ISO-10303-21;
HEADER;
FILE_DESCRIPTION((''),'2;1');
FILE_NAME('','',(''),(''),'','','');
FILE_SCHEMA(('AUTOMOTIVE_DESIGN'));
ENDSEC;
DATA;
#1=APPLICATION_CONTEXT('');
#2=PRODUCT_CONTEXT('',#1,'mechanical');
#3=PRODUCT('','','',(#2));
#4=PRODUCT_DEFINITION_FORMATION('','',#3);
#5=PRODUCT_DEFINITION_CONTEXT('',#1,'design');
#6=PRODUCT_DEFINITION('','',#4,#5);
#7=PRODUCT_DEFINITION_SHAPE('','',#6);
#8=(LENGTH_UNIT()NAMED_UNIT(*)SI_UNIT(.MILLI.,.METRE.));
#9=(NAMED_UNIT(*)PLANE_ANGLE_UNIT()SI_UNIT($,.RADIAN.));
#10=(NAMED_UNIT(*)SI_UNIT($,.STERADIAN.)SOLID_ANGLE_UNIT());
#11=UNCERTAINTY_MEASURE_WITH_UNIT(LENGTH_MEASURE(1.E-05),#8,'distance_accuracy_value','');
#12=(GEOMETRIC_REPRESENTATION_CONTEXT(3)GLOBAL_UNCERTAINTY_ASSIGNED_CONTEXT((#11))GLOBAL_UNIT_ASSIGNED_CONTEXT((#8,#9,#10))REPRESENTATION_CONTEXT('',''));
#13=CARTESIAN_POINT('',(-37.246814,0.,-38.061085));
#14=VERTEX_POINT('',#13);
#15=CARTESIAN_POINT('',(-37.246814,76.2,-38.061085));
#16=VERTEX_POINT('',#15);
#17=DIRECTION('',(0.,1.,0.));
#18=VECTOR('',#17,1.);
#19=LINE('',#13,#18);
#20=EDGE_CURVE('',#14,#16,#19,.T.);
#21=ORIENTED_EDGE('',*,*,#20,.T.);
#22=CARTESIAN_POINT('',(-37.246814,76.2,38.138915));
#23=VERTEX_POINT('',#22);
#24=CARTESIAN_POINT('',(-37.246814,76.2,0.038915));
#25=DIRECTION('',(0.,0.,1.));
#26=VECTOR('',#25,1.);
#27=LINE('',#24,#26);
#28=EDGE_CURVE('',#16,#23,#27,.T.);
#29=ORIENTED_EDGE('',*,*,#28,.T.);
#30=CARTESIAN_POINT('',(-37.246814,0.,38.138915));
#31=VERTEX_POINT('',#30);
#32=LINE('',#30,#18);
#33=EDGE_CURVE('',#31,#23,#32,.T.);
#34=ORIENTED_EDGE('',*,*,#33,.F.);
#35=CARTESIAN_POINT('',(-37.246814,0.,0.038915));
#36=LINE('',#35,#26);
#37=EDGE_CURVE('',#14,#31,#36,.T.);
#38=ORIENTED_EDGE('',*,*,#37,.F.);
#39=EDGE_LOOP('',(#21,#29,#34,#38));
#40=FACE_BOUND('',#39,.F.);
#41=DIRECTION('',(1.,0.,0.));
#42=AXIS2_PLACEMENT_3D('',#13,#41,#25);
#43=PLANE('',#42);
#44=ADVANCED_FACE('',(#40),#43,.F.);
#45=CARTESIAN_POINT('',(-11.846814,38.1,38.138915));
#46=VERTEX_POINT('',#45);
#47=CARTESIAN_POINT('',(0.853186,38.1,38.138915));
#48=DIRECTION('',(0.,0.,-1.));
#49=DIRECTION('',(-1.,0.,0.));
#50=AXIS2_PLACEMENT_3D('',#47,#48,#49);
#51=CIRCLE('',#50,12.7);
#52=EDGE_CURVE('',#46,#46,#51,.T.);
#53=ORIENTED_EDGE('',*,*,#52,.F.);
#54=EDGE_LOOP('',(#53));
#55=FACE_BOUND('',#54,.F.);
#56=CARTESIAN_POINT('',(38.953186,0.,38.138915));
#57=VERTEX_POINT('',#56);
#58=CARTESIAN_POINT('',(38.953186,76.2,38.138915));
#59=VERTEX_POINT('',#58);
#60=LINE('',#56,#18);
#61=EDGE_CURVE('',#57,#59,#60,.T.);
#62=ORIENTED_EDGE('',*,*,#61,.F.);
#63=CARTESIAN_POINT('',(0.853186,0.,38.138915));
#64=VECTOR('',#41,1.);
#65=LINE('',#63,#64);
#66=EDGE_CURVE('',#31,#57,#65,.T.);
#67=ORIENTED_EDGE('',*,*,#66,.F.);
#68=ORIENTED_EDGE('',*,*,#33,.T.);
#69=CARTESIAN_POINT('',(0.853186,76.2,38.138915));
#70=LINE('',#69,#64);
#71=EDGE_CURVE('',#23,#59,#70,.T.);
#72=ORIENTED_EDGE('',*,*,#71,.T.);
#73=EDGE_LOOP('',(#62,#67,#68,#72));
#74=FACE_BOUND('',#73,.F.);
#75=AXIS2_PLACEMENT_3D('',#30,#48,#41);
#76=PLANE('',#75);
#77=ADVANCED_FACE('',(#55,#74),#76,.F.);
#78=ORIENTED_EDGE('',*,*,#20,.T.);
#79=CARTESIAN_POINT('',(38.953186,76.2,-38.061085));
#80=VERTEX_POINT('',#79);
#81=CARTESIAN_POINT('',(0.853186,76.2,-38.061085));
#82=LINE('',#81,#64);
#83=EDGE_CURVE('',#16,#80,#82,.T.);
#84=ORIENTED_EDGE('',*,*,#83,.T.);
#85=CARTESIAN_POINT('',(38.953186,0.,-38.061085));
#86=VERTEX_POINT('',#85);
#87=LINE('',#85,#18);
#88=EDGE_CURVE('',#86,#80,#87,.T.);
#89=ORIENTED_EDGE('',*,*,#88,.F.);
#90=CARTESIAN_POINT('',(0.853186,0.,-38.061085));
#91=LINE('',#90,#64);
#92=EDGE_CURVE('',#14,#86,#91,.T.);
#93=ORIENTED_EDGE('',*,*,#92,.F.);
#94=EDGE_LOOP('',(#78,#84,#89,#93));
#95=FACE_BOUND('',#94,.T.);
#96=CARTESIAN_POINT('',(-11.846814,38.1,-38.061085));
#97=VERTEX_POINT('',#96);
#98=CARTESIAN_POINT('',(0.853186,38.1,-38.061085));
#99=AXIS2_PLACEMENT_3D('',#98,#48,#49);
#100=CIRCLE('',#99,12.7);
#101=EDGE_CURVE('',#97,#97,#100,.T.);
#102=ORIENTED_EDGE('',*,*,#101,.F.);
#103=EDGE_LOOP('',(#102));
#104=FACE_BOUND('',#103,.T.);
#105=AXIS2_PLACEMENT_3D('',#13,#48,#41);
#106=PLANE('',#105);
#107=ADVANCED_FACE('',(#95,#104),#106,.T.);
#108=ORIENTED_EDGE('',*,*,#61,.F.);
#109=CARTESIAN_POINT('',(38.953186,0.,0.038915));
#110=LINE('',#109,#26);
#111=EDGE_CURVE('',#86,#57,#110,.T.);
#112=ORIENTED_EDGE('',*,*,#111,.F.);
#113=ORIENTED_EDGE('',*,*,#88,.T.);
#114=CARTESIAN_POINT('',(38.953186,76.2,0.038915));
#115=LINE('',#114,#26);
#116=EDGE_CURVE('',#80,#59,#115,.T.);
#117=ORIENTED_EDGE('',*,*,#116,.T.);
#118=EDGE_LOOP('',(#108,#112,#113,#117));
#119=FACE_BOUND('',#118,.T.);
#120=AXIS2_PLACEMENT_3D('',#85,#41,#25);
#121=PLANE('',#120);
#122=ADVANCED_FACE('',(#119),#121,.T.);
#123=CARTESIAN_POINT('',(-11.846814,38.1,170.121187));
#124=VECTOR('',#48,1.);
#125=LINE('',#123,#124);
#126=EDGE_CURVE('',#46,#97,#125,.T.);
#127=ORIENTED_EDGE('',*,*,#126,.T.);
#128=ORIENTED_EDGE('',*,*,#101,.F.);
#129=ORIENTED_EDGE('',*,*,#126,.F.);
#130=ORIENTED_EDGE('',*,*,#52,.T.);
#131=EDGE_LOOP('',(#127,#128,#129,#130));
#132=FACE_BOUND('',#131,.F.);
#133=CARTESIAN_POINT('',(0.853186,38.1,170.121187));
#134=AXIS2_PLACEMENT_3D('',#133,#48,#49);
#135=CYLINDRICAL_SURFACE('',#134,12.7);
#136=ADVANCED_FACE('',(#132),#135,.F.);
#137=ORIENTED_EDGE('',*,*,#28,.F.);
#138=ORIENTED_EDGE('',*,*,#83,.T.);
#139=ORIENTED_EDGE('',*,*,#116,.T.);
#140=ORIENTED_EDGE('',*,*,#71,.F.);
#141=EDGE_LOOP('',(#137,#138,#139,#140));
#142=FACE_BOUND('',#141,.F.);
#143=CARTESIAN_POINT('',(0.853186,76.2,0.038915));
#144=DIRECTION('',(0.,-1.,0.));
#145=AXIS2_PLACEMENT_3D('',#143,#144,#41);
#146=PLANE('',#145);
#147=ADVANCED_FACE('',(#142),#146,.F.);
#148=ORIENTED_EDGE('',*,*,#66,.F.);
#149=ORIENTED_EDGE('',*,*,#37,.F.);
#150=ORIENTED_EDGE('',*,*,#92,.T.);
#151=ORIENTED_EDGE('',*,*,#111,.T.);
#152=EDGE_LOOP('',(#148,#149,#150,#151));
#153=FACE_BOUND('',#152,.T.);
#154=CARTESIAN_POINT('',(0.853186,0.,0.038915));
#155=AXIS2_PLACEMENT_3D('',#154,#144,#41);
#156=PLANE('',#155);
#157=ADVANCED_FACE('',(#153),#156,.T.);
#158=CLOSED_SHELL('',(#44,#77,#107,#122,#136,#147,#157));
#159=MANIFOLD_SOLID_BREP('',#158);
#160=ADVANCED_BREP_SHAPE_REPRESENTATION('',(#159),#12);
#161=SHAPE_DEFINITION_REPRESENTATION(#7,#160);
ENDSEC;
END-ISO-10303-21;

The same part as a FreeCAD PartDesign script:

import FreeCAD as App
import Part
import Sketcher
from FreeCAD import Vector
Q = App.Units.Quantity

doc = App.newDocument("Part")
body = doc.addObject("PartDesign::Body", "Body")

sketch1 = doc.addObject("Sketcher::SketchObject", "Sketch")
body.addObject(sketch1)
sketch1.AttachmentSupport = (doc.XZ_Plane, [""])
sketch1.MapMode = "FlatFace"
sketch1.addGeometry(Part.LineSegment(Vector(-37, 38, 0), Vector(-37, -38, 0)), False)
sketch1.addGeometry(Part.LineSegment(Vector(-37, -38, 0), Vector(39, -38, 0)), False)
sketch1.addGeometry(Part.LineSegment(Vector(39, -38, 0), Vector(39, 38, 0)), False)
sketch1.addGeometry(Part.LineSegment(Vector(39, 38, 0), Vector(-37, 38, 0)), False)
sketch1.addConstraint(Sketcher.Constraint("Coincident", 0, 2, 1, 1))
sketch1.addConstraint(Sketcher.Constraint("Coincident", 1, 2, 2, 1))
sketch1.addConstraint(Sketcher.Constraint("Coincident", 2, 2, 3, 1))
sketch1.addConstraint(Sketcher.Constraint("Coincident", 3, 2, 0, 1))
sketch1.addConstraint(Sketcher.Constraint("Vertical", 0))
sketch1.addConstraint(Sketcher.Constraint("Horizontal", 1))
sketch1.addConstraint(Sketcher.Constraint("Vertical", 2))
sketch1.addConstraint(Sketcher.Constraint("Horizontal", 3))
sketch1.addConstraint(Sketcher.Constraint("Equal", 3, 0))
sketch1.addConstraint(Sketcher.Constraint("DistanceX", 1, 1, 1, 2, Q("3 in")))
sketch1.addConstraint(Sketcher.Constraint("DistanceX", 0, 2, -1, 1, Q("37.246814 mm")))
sketch1.addConstraint(Sketcher.Constraint("DistanceY", 0, 2, -1, 1, Q("38.061085 mm")))
pad1 = doc.addObject("PartDesign::Pad", "Pad")
body.addObject(pad1)
pad1.Profile = sketch1
pad1.Length = Q("3 in")
pad1.Reversed = True

sketch2 = doc.addObject("Sketcher::SketchObject", "Sketch001")
body.addObject(sketch2)
sketch2.AttachmentSupport = (doc.XY_Plane, [""])
sketch2.MapMode = "FlatFace"
sketch2.AttachmentOffset = App.Placement(Vector(0, 0, 38.138915), App.Rotation())
sketch2.addGeometry(Part.Circle(Vector(1, 38, 0), Vector(0, 0, 1), 13), False)
sketch2.addConstraint(Sketcher.Constraint("Diameter", 0, Q("1 in")))
sketch2.addConstraint(Sketcher.Constraint("DistanceY", -1, 1, 0, 3, Q("1.5 in")))
sketch2.addConstraint(Sketcher.Constraint("DistanceX", -1, 1, 0, 3, Q("0.853186 mm")))
doc.recompute()
hole = doc.addObject("PartDesign::Hole", "Hole")
body.addObject(hole)
hole.Profile = sketch2
hole.ThreadType = "None"
hole.Diameter = Q("1 in")
hole.DepthType = "ThroughAll"

doc.recompute()
